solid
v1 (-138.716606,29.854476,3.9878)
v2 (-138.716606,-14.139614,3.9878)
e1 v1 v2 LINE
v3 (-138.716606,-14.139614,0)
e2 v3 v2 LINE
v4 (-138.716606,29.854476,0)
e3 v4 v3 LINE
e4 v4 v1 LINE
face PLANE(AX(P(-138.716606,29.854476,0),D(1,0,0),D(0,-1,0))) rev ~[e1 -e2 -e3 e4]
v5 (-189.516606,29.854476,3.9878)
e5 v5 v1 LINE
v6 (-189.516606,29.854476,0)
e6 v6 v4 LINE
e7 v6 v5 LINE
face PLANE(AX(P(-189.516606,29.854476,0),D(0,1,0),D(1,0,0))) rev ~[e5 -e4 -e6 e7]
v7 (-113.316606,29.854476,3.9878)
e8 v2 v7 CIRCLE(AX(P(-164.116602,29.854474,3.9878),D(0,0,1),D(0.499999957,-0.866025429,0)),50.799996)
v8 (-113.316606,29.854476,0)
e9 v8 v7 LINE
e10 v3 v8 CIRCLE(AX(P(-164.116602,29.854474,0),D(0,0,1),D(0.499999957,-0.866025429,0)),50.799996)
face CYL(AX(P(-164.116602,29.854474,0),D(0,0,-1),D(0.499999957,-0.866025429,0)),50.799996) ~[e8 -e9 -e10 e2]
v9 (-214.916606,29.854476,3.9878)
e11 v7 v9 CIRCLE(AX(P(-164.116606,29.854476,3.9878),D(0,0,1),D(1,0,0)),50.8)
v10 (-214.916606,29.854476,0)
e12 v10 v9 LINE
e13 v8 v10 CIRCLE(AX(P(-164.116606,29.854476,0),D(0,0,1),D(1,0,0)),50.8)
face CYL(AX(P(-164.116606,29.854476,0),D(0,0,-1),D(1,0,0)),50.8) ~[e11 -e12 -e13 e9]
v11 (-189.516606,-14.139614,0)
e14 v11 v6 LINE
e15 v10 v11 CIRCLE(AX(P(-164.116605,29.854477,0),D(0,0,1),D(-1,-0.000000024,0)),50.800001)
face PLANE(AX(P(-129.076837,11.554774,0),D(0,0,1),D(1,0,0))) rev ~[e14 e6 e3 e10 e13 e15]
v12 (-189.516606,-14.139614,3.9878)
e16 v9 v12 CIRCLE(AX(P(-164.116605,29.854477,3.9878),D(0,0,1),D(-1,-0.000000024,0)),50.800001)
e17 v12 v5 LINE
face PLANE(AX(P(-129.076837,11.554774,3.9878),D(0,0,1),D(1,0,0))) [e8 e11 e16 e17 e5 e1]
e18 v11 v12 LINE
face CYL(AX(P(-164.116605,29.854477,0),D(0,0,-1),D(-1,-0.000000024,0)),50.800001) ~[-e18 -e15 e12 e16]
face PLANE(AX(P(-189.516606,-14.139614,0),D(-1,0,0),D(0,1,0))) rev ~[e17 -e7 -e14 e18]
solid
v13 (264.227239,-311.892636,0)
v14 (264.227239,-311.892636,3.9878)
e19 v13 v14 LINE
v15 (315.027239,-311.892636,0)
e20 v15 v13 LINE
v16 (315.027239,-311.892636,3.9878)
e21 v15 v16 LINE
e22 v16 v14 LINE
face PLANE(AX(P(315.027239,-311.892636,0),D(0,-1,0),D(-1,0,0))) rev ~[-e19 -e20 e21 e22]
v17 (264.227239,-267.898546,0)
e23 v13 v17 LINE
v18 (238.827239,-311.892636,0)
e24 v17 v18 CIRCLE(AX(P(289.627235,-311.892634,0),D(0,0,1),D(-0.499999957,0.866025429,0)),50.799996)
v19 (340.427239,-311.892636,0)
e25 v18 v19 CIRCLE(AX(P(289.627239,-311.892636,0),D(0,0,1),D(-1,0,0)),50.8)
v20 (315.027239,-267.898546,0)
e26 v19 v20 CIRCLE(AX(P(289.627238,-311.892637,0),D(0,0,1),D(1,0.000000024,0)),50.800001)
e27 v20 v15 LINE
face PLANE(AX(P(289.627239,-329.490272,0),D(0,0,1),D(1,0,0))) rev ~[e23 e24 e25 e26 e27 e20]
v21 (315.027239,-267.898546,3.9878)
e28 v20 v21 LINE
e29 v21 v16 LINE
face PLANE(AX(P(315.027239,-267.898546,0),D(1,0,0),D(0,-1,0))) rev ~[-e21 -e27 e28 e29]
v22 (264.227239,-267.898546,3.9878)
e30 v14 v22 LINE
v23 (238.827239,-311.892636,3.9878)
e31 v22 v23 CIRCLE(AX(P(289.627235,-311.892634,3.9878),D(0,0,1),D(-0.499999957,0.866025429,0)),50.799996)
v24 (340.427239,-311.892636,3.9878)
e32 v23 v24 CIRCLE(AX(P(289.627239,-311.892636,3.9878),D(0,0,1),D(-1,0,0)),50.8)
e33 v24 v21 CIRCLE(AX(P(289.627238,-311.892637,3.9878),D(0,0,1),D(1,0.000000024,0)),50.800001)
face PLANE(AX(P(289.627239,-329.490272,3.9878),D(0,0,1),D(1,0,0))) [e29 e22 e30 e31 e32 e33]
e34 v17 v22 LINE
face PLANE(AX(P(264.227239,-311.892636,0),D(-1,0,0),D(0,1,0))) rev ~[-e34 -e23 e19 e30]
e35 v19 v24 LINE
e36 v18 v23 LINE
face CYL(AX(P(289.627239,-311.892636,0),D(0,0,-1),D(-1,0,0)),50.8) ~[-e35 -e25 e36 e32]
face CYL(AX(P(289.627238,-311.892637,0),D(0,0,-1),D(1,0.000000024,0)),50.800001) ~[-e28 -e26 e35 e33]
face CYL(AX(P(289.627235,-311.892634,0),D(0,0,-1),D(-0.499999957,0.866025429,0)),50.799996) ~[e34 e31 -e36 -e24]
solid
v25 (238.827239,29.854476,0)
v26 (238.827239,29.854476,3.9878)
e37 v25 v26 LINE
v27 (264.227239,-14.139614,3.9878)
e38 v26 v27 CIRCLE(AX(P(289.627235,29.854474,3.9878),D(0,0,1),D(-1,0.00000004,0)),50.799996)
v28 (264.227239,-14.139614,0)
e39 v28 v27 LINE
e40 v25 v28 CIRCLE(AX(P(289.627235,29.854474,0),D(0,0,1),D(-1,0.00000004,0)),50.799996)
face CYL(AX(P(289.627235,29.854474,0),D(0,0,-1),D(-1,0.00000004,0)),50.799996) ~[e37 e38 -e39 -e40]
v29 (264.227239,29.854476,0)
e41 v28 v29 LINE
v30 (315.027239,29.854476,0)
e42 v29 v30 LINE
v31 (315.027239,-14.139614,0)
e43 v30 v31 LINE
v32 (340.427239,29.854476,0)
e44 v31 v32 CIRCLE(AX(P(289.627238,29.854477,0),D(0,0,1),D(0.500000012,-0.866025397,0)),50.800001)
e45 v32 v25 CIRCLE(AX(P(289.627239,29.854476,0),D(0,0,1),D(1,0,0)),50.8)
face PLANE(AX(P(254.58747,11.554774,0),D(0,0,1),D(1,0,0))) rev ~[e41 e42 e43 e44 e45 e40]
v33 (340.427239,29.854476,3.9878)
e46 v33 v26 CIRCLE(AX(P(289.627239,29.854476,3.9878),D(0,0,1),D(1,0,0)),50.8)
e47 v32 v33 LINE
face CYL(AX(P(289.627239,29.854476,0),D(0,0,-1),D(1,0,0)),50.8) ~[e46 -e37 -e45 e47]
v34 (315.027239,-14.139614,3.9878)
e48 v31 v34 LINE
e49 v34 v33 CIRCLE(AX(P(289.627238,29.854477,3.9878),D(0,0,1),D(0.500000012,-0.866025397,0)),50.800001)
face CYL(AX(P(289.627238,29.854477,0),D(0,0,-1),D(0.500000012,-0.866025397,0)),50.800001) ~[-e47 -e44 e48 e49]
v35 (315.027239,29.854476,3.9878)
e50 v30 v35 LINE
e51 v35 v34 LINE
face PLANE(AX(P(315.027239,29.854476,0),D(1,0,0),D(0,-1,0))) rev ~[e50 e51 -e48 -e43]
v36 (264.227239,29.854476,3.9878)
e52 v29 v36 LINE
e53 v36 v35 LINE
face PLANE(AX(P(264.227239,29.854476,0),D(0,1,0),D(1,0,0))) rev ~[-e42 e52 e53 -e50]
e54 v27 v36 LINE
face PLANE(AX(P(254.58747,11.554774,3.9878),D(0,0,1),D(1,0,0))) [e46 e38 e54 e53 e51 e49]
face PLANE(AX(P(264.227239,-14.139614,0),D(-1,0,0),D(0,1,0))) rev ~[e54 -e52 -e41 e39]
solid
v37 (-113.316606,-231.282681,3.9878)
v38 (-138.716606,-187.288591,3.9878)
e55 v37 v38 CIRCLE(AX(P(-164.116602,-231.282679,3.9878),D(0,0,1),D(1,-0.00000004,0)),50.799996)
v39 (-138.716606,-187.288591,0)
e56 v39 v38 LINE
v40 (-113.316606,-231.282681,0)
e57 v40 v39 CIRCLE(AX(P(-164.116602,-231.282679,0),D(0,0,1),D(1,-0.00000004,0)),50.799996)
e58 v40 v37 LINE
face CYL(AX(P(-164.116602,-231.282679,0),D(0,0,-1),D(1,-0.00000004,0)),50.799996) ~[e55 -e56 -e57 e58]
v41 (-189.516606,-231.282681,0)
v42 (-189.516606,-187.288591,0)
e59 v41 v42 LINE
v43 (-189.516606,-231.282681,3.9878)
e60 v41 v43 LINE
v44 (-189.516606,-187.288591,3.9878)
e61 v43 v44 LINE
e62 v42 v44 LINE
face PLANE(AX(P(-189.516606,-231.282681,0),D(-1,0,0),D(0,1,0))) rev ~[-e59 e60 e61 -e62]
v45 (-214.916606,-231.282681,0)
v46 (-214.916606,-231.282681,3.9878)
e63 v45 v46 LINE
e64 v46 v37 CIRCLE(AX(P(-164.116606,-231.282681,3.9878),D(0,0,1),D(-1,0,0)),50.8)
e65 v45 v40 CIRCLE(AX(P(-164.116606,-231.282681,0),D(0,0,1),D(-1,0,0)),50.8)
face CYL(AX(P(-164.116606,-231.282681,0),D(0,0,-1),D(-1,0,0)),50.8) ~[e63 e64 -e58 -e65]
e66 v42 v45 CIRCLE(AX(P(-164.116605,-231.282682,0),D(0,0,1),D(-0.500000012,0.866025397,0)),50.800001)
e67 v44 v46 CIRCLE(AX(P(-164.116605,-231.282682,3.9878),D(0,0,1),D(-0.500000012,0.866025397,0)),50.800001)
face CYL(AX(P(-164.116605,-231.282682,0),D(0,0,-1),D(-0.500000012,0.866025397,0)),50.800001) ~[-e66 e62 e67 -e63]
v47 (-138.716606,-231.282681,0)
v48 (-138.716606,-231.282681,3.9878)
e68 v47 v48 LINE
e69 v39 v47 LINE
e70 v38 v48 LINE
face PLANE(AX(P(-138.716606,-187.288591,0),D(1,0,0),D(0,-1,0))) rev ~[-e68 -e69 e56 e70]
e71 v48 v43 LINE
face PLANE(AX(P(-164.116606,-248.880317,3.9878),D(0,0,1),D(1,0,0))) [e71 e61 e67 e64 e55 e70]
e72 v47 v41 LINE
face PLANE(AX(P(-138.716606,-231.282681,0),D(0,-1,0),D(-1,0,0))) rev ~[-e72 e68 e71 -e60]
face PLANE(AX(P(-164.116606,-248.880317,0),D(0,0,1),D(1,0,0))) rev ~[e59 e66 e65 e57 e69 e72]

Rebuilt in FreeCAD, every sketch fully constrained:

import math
import FreeCAD as App
import Part
import Sketcher
Q = App.Units.Quantity

doc = App.newDocument("Part")
params = doc.addObject("Spreadsheet::Sheet", "Params")
for row, (alias, value) in enumerate([
    ("sketch1_radius", "1.9999998 in"),
    ("sketch1_radius2", "2 in"),
    ("sketch1_width", "2 in"),
    ("pad1_length", "0.157 in"),
], start=1):
    params.set(f"A{row}", alias)
    params.set(f"B{row}", "=" + value)
    params.setAlias(f"B{row}", alias)

body = doc.addObject("PartDesign::Body", "Body")
body.AllowCompound = True

# Sketch on XY plane
sketch1 = body.newObject("Sketcher::SketchObject", "Sketch")
sketch1.AttachmentSupport = (doc.getObject("XY_Plane"), [""])
sketch1.MapMode = "FlatFace"
sketch1.addGeometry([
    Part.LineSegment(App.Vector(-139, 30, 0), App.Vector(-139, -14, 0)),  # 0
    Part.ArcOfCircle(Part.Circle(App.Vector(-164, 30, 0), App.Vector(0, 0, 1), 51), math.radians(-60), math.radians(0)),  # 1
    Part.ArcOfCircle(Part.Circle(App.Vector(-164, 30, 0), App.Vector(0, 0, 1), 51), math.radians(0), math.radians(180)),  # 2
    Part.ArcOfCircle(Part.Circle(App.Vector(-164, 30, 0), App.Vector(0, 0, 1), 51), math.radians(-180), math.radians(-120)),  # 3
    Part.LineSegment(App.Vector(-190, -14, 0), App.Vector(-190, 30, 0)),  # 4
    Part.LineSegment(App.Vector(-190, 30, 0), App.Vector(-139, 30, 0)),  # 5
    Part.ArcOfCircle(Part.Circle(App.Vector(290, 30, 0), App.Vector(0, 0, 1), 51), math.radians(180), math.radians(240)),  # 6
    Part.LineSegment(App.Vector(264, -14, 0), App.Vector(264, 30, 0)),  # 7
    Part.LineSegment(App.Vector(264, 30, 0), App.Vector(315, 30, 0)),  # 8
    Part.LineSegment(App.Vector(315, 30, 0), App.Vector(315, -14, 0)),  # 9
    Part.ArcOfCircle(Part.Circle(App.Vector(290, 30, 0), App.Vector(0, 0, 1), 51), math.radians(-60), math.radians(0)),  # 10
    Part.ArcOfCircle(Part.Circle(App.Vector(290, 30, 0), App.Vector(0, 0, 1), 51), math.radians(0), math.radians(180)),  # 11
    Part.ArcOfCircle(Part.Circle(App.Vector(-164, -231, 0), App.Vector(0, 0, 1), 51), math.radians(180), math.radians(360)),  # 12
    Part.ArcOfCircle(Part.Circle(App.Vector(-164, -231, 0), App.Vector(0, 0, 1), 51), math.radians(0), math.radians(60)),  # 13
    Part.LineSegment(App.Vector(-139, -187, 0), App.Vector(-139, -231, 0)),  # 14
    Part.LineSegment(App.Vector(-139, -231, 0), App.Vector(-190, -231, 0)),  # 15
    Part.LineSegment(App.Vector(-190, -231, 0), App.Vector(-190, -187, 0)),  # 16
    Part.ArcOfCircle(Part.Circle(App.Vector(-164, -231, 0), App.Vector(0, 0, 1), 51), math.radians(120), math.radians(180)),  # 17
    Part.ArcOfCircle(Part.Circle(App.Vector(290, -312, 0), App.Vector(0, 0, 1), 51), math.radians(180), math.radians(360)),  # 18
    Part.ArcOfCircle(Part.Circle(App.Vector(290, -312, 0), App.Vector(0, 0, 1), 51), math.radians(0), math.radians(60)),  # 19
    Part.LineSegment(App.Vector(315, -268, 0), App.Vector(315, -312, 0)),  # 20
    Part.LineSegment(App.Vector(315, -312, 0), App.Vector(264, -312, 0)),  # 21
    Part.LineSegment(App.Vector(264, -312, 0), App.Vector(264, -268, 0)),  # 22
    Part.ArcOfCircle(Part.Circle(App.Vector(290, -312, 0), App.Vector(0, 0, 1), 51), math.radians(120), math.radians(180)),  # 23
], False)
sketch1.addConstraint([
    Sketcher.Constraint("Coincident", 0, 2, 1, 1),
    Sketcher.Constraint("Tangent", 1, 2, 2, 1),
    Sketcher.Constraint("Tangent", 2, 2, 3, 1),
    Sketcher.Constraint("Coincident", 3, 2, 4, 1),
    Sketcher.Constraint("Coincident", 4, 2, 5, 1),
    Sketcher.Constraint("Coincident", 5, 2, 0, 1),
    Sketcher.Constraint("Coincident", 6, 2, 7, 1),
    Sketcher.Constraint("Coincident", 7, 2, 8, 1),
    Sketcher.Constraint("Coincident", 8, 2, 9, 1),
    Sketcher.Constraint("Coincident", 9, 2, 10, 1),
    Sketcher.Constraint("Tangent", 10, 2, 11, 1),
    Sketcher.Constraint("Tangent", 11, 2, 6, 1),
    Sketcher.Constraint("Tangent", 12, 2, 13, 1),
    Sketcher.Constraint("Coincident", 13, 2, 14, 1),
    Sketcher.Constraint("Coincident", 14, 2, 15, 1),
    Sketcher.Constraint("Coincident", 15, 2, 16, 1),
    Sketcher.Constraint("Coincident", 16, 2, 17, 1),
    Sketcher.Constraint("Tangent", 17, 2, 12, 1),
    Sketcher.Constraint("Tangent", 18, 2, 19, 1),
    Sketcher.Constraint("Coincident", 19, 2, 20, 1),
    Sketcher.Constraint("Coincident", 20, 2, 21, 1),
    Sketcher.Constraint("Coincident", 21, 2, 22, 1),
    Sketcher.Constraint("Coincident", 22, 2, 23, 1),
    Sketcher.Constraint("Tangent", 23, 2, 18, 1),
    Sketcher.Constraint("Vertical", 0),
    Sketcher.Constraint("Vertical", 4),
    Sketcher.Constraint("Horizontal", 5),
    Sketcher.Constraint("Vertical", 7),
    Sketcher.Constraint("Horizontal", 8),
    Sketcher.Constraint("Vertical", 9),
    Sketcher.Constraint("Vertical", 14),
    Sketcher.Constraint("Horizontal", 15),
    Sketcher.Constraint("Vertical", 16),
    Sketcher.Constraint("Vertical", 20),
    Sketcher.Constraint("Horizontal", 21),
    Sketcher.Constraint("Vertical", 22),
    Sketcher.Constraint("Equal", 2, 3),
    Sketcher.Constraint("Equal", 1, 6),
    Sketcher.Constraint("Equal", 3, 10),
    Sketcher.Constraint("Equal", 10, 11),
    Sketcher.Constraint("Equal", 11, 12),
    Sketcher.Constraint("Equal", 6, 13),
    Sketcher.Constraint("Equal", 12, 17),
    Sketcher.Constraint("Equal", 17, 18),
    Sketcher.Constraint("Equal", 18, 19),
    Sketcher.Constraint("Equal", 13, 23),
    Sketcher.Constraint("Horizontal", 1, 3, 6, 3),
    Sketcher.Constraint("Horizontal", 11, 3, 1, 2),
    Sketcher.Constraint("Horizontal", 1, 2, 2, 2),
    Sketcher.Constraint("Horizontal", 0, 2, 3, 2),
    Sketcher.Constraint("Horizontal", 2, 2, 4, 2),
    Sketcher.Constraint("Horizontal", 3, 2, 6, 2),
    Sketcher.Constraint("Horizontal", 5, 2, 7, 2),
    Sketcher.Constraint("Horizontal", 6, 2, 9, 2),
    Sketcher.Constraint("Horizontal", 8, 2, 10, 2),
    Sketcher.Constraint("Horizontal", 10, 2, 11, 2),
    Sketcher.Constraint("Horizontal", 17, 3, 12, 2),
    Sketcher.Constraint("Horizontal", 12, 2, 14, 2),
    Sketcher.Constraint("Horizontal", 13, 2, 16, 2),
    Sketcher.Constraint("Horizontal", 15, 2, 17, 2),
    Sketcher.Constraint("Horizontal", 19, 3, 18, 2),
    Sketcher.Constraint("Horizontal", 18, 2, 20, 2),
    Sketcher.Constraint("Horizontal", 19, 2, 22, 2),
    Sketcher.Constraint("Horizontal", 21, 2, 23, 2),
    Sketcher.Constraint("Vertical", 3, 3, 12, 3),
    Sketcher.Constraint("Vertical", 11, 3, 18, 3),
    Sketcher.Constraint("Vertical", 5, 2, 13, 2),
    Sketcher.Constraint("Vertical", 9, 2, 19, 2),
    Sketcher.Constraint("Radius", 1, Q("1.9999998 in")),
    Sketcher.Constraint("Radius", 2, Q("2 in")),
    Sketcher.Constraint("DistanceX", 5, 1, 5, 2, Q("2 in")),
    Sketcher.Constraint("DistanceX", 1, 3, -1, 1, 164.116602),
    Sketcher.Constraint("DistanceX", -1, 1, 11, 3, 289.627239),
    Sketcher.Constraint("DistanceY", 12, 3, -1, 1, 231.282681),
    Sketcher.Constraint("DistanceY", 12, 3, 3, 3, 261.137158),
    Sketcher.Constraint("DistanceY", 18, 3, 6, 3, 341.74711),
])
sketch1.setExpression("Constraints[68]", "Params.sketch1_radius")
sketch1.setExpression("Constraints[69]", "Params.sketch1_radius2")
sketch1.setExpression("Constraints[70]", "Params.sketch1_width")
pad1 = body.newObject("PartDesign::Pad", "Pad")
pad1.Profile = sketch1
pad1.setExpression("Length", "Params.pad1_length")

doc.recompute()
